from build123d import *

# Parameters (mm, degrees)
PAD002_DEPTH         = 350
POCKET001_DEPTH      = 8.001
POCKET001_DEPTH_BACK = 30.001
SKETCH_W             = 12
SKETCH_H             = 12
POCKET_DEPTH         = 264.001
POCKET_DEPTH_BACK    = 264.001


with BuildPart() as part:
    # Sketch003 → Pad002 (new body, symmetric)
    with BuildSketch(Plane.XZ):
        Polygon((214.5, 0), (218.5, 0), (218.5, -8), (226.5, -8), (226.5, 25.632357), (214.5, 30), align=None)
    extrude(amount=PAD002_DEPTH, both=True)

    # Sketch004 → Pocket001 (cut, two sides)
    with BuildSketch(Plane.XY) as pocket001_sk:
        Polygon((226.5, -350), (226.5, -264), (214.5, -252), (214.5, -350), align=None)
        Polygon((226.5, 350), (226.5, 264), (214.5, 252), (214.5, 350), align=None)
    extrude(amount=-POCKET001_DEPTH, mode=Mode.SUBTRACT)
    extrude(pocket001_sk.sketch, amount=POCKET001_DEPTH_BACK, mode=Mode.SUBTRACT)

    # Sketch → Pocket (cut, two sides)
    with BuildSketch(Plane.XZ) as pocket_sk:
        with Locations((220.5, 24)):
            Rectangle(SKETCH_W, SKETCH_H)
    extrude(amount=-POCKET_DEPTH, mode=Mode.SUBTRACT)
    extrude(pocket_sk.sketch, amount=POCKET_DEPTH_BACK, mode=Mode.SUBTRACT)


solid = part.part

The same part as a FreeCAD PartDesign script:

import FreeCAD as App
import Part
import Sketcher
from FreeCAD import Vector
Q = App.Units.Quantity

doc = App.newDocument("Part")
body = doc.addObject("PartDesign::Body", "Body")

sketch1 = body.newObject("Sketcher::SketchObject", "Sketch")
sketch1.AttachmentSupport = (doc.getObject("XZ_Plane"), [""])
sketch1.MapMode = "FlatFace"
sketch1.addGeometry(Part.LineSegment(Vector(214.5, 0, 0), Vector(218.5, 0, 0)), False)
sketch1.addGeometry(Part.LineSegment(Vector(218.5, 0, 0), Vector(218.5, -8, 0)), False)
sketch1.addGeometry(Part.LineSegment(Vector(218.5, -8, 0), Vector(226.5, -8, 0)), False)
sketch1.addGeometry(Part.LineSegment(Vector(226.5, -8, 0), Vector(226.5, 25.6, 0)), False)
sketch1.addGeometry(Part.LineSegment(Vector(226.5, 25.6, 0), Vector(214.5, 30, 0)), False)
sketch1.addGeometry(Part.LineSegment(Vector(214.5, 30, 0), Vector(214.5, 0, 0)), False)
sketch1.addConstraint(Sketcher.Constraint("Coincident", 0, 2, 1, 1))
sketch1.addConstraint(Sketcher.Constraint("Coincident", 1, 2, 2, 1))
sketch1.addConstraint(Sketcher.Constraint("Coincident", 2, 2, 3, 1))
sketch1.addConstraint(Sketcher.Constraint("Coincident", 3, 2, 4, 1))
sketch1.addConstraint(Sketcher.Constraint("Coincident", 4, 2, 5, 1))
sketch1.addConstraint(Sketcher.Constraint("Coincident", 5, 2, 0, 1))
sketch1.addConstraint(Sketcher.Constraint("Horizontal", 0))
sketch1.addConstraint(Sketcher.Constraint("Vertical", 1))
sketch1.addConstraint(Sketcher.Constraint("Horizontal", 2))
sketch1.addConstraint(Sketcher.Constraint("Vertical", 3))
sketch1.addConstraint(Sketcher.Constraint("Vertical", 5))
sketch1.addConstraint(Sketcher.Constraint("PointOnObject", 0, 2, -1))
sketch1.addConstraint(Sketcher.Constraint("Equal", 2, 1))
sketch1.addConstraint(Sketcher.Constraint("DistanceX", 0, 1, 0, 2, 4.0))
sketch1.addConstraint(Sketcher.Constraint("DistanceX", 2, 1, 2, 2, 8.0))
sketch1.addConstraint(Sketcher.Constraint("DistanceY", 5, 2, 5, 1, 30.0))
sketch1.addConstraint(Sketcher.Constraint("Angle", 4, Q("159.999999 deg")))
sketch1.addConstraint(Sketcher.Constraint("DistanceX", -1, 1, 0, 2, 218.5))
pad1 = body.newObject("PartDesign::Pad", "Pad")
pad1.Profile = sketch1
pad1.Length = 700
pad1.Midplane = True

sketch2 = body.newObject("Sketcher::SketchObject", "Sketch001")
sketch2.AttachmentSupport = (doc.getObject("XY_Plane"), [""])
sketch2.MapMode = "FlatFace"
sketch2.addGeometry(Part.LineSegment(Vector(226, -350, 0), Vector(226, -264, 0)), False)
sketch2.addGeometry(Part.LineSegment(Vector(226, -264, 0), Vector(214, -252, 0)), False)
sketch2.addGeometry(Part.LineSegment(Vector(214, -252, 0), Vector(214, -350, 0)), False)
sketch2.addGeometry(Part.LineSegment(Vector(214, -350, 0), Vector(226, -350, 0)), False)
sketch2.addGeometry(Part.LineSegment(Vector(226, 264, 0), Vector(226, 350, 0)), False)
sketch2.addGeometry(Part.LineSegment(Vector(226, 350, 0), Vector(214, 350, 0)), False)
sketch2.addGeometry(Part.LineSegment(Vector(214, 350, 0), Vector(214, 252, 0)), False)
sketch2.addGeometry(Part.LineSegment(Vector(214, 252, 0), Vector(226, 264, 0)), False)
sketch2.addConstraint(Sketcher.Constraint("Coincident", 0, 2, 1, 1))
sketch2.addConstraint(Sketcher.Constraint("Coincident", 1, 2, 2, 1))
sketch2.addConstraint(Sketcher.Constraint("Coincident", 2, 2, 3, 1))
sketch2.addConstraint(Sketcher.Constraint("Coincident", 3, 2, 0, 1))
sketch2.addConstraint(Sketcher.Constraint("Coincident", 4, 2, 5, 1))
sketch2.addConstraint(Sketcher.Constraint("Coincident", 5, 2, 6, 1))
sketch2.addConstraint(Sketcher.Constraint("Coincident", 6, 2, 7, 1))
sketch2.addConstraint(Sketcher.Constraint("Coincident", 7, 2, 4, 1))
sketch2.addConstraint(Sketcher.Constraint("Vertical", 0))
sketch2.addConstraint(Sketcher.Constraint("Vertical", 2))
sketch2.addConstraint(Sketcher.Constraint("Horizontal", 3))
sketch2.addConstraint(Sketcher.Constraint("Vertical", 4))
sketch2.addConstraint(Sketcher.Constraint("Horizontal", 5))
sketch2.addConstraint(Sketcher.Constraint("Vertical", 6))
sketch2.addConstraint(Sketcher.Constraint("Symmetric", 3, 2, 4, 2, -1))
sketch2.addConstraint(Sketcher.Constraint("Symmetric", 1, 2, 6, 2, -1))
sketch2.addConstraint(Sketcher.Constraint("Perpendicular", 1, 7))
sketch2.addConstraint(Sketcher.Constraint("Equal", 0, 4))
sketch2.addConstraint(Sketcher.Constraint("DistanceX", 3, 1, 3, 2, 12.0))
sketch2.addConstraint(Sketcher.Constraint("DistanceY", 0, 1, 0, 2, 86.0))
sketch2.addConstraint(Sketcher.Constraint("DistanceY", 0, 2, -1, 1, 264.0))
sketch2.addConstraint(Sketcher.Constraint("DistanceX", -1, 1, 0, 2, 226.5))
pocket1 = body.newObject("PartDesign::Pocket", "Pocket")
pocket1.Profile = sketch2
pocket1.Type = "ThroughAll"
pocket1.Midplane = True

sketch3 = body.newObject("Sketcher::SketchObject", "Sketch002")
sketch3.AttachmentSupport = (doc.getObject("XZ_Plane"), [""])
sketch3.MapMode = "FlatFace"
sketch3.addGeometry(Part.LineSegment(Vector(214, 30, 0), Vector(214, 18, 0)), False)
sketch3.addGeometry(Part.LineSegment(Vector(214, 18, 0), Vector(226, 18, 0)), False)
sketch3.addGeometry(Part.LineSegment(Vector(226, 18, 0), Vector(226, 30, 0)), False)
sketch3.addGeometry(Part.LineSegment(Vector(226, 30, 0), Vector(214, 30, 0)), False)
sketch3.addConstraint(Sketcher.Constraint("Coincident", 0, 2, 1, 1))
sketch3.addConstraint(Sketcher.Constraint("Coincident", 1, 2, 2, 1))
sketch3.addConstraint(Sketcher.Constraint("Coincident", 2, 2, 3, 1))
sketch3.addConstraint(Sketcher.Constraint("Coincident", 3, 2, 0, 1))
sketch3.addConstraint(Sketcher.Constraint("Vertical", 0))
sketch3.addConstraint(Sketcher.Constraint("Horizontal", 1))
sketch3.addConstraint(Sketcher.Constraint("Vertical", 2))
sketch3.addConstraint(Sketcher.Constraint("Horizontal", 3))
sketch3.addConstraint(Sketcher.Constraint("Equal", 3, 0))
sketch3.addConstraint(Sketcher.Constraint("DistanceX", 1, 1, 1, 2, 12.0))
sketch3.addConstraint(Sketcher.Constraint("DistanceY", -1, 1, 0, 2, 18.0))
sketch3.addConstraint(Sketcher.Constraint("DistanceX", -1, 1, 0, 2, 214.5))
pocket2 = body.newObject("PartDesign::Pocket", "Pocket001")
pocket2.Profile = sketch3
pocket2.Type = "ThroughAll"
pocket2.Midplane = True

doc.recompute()
